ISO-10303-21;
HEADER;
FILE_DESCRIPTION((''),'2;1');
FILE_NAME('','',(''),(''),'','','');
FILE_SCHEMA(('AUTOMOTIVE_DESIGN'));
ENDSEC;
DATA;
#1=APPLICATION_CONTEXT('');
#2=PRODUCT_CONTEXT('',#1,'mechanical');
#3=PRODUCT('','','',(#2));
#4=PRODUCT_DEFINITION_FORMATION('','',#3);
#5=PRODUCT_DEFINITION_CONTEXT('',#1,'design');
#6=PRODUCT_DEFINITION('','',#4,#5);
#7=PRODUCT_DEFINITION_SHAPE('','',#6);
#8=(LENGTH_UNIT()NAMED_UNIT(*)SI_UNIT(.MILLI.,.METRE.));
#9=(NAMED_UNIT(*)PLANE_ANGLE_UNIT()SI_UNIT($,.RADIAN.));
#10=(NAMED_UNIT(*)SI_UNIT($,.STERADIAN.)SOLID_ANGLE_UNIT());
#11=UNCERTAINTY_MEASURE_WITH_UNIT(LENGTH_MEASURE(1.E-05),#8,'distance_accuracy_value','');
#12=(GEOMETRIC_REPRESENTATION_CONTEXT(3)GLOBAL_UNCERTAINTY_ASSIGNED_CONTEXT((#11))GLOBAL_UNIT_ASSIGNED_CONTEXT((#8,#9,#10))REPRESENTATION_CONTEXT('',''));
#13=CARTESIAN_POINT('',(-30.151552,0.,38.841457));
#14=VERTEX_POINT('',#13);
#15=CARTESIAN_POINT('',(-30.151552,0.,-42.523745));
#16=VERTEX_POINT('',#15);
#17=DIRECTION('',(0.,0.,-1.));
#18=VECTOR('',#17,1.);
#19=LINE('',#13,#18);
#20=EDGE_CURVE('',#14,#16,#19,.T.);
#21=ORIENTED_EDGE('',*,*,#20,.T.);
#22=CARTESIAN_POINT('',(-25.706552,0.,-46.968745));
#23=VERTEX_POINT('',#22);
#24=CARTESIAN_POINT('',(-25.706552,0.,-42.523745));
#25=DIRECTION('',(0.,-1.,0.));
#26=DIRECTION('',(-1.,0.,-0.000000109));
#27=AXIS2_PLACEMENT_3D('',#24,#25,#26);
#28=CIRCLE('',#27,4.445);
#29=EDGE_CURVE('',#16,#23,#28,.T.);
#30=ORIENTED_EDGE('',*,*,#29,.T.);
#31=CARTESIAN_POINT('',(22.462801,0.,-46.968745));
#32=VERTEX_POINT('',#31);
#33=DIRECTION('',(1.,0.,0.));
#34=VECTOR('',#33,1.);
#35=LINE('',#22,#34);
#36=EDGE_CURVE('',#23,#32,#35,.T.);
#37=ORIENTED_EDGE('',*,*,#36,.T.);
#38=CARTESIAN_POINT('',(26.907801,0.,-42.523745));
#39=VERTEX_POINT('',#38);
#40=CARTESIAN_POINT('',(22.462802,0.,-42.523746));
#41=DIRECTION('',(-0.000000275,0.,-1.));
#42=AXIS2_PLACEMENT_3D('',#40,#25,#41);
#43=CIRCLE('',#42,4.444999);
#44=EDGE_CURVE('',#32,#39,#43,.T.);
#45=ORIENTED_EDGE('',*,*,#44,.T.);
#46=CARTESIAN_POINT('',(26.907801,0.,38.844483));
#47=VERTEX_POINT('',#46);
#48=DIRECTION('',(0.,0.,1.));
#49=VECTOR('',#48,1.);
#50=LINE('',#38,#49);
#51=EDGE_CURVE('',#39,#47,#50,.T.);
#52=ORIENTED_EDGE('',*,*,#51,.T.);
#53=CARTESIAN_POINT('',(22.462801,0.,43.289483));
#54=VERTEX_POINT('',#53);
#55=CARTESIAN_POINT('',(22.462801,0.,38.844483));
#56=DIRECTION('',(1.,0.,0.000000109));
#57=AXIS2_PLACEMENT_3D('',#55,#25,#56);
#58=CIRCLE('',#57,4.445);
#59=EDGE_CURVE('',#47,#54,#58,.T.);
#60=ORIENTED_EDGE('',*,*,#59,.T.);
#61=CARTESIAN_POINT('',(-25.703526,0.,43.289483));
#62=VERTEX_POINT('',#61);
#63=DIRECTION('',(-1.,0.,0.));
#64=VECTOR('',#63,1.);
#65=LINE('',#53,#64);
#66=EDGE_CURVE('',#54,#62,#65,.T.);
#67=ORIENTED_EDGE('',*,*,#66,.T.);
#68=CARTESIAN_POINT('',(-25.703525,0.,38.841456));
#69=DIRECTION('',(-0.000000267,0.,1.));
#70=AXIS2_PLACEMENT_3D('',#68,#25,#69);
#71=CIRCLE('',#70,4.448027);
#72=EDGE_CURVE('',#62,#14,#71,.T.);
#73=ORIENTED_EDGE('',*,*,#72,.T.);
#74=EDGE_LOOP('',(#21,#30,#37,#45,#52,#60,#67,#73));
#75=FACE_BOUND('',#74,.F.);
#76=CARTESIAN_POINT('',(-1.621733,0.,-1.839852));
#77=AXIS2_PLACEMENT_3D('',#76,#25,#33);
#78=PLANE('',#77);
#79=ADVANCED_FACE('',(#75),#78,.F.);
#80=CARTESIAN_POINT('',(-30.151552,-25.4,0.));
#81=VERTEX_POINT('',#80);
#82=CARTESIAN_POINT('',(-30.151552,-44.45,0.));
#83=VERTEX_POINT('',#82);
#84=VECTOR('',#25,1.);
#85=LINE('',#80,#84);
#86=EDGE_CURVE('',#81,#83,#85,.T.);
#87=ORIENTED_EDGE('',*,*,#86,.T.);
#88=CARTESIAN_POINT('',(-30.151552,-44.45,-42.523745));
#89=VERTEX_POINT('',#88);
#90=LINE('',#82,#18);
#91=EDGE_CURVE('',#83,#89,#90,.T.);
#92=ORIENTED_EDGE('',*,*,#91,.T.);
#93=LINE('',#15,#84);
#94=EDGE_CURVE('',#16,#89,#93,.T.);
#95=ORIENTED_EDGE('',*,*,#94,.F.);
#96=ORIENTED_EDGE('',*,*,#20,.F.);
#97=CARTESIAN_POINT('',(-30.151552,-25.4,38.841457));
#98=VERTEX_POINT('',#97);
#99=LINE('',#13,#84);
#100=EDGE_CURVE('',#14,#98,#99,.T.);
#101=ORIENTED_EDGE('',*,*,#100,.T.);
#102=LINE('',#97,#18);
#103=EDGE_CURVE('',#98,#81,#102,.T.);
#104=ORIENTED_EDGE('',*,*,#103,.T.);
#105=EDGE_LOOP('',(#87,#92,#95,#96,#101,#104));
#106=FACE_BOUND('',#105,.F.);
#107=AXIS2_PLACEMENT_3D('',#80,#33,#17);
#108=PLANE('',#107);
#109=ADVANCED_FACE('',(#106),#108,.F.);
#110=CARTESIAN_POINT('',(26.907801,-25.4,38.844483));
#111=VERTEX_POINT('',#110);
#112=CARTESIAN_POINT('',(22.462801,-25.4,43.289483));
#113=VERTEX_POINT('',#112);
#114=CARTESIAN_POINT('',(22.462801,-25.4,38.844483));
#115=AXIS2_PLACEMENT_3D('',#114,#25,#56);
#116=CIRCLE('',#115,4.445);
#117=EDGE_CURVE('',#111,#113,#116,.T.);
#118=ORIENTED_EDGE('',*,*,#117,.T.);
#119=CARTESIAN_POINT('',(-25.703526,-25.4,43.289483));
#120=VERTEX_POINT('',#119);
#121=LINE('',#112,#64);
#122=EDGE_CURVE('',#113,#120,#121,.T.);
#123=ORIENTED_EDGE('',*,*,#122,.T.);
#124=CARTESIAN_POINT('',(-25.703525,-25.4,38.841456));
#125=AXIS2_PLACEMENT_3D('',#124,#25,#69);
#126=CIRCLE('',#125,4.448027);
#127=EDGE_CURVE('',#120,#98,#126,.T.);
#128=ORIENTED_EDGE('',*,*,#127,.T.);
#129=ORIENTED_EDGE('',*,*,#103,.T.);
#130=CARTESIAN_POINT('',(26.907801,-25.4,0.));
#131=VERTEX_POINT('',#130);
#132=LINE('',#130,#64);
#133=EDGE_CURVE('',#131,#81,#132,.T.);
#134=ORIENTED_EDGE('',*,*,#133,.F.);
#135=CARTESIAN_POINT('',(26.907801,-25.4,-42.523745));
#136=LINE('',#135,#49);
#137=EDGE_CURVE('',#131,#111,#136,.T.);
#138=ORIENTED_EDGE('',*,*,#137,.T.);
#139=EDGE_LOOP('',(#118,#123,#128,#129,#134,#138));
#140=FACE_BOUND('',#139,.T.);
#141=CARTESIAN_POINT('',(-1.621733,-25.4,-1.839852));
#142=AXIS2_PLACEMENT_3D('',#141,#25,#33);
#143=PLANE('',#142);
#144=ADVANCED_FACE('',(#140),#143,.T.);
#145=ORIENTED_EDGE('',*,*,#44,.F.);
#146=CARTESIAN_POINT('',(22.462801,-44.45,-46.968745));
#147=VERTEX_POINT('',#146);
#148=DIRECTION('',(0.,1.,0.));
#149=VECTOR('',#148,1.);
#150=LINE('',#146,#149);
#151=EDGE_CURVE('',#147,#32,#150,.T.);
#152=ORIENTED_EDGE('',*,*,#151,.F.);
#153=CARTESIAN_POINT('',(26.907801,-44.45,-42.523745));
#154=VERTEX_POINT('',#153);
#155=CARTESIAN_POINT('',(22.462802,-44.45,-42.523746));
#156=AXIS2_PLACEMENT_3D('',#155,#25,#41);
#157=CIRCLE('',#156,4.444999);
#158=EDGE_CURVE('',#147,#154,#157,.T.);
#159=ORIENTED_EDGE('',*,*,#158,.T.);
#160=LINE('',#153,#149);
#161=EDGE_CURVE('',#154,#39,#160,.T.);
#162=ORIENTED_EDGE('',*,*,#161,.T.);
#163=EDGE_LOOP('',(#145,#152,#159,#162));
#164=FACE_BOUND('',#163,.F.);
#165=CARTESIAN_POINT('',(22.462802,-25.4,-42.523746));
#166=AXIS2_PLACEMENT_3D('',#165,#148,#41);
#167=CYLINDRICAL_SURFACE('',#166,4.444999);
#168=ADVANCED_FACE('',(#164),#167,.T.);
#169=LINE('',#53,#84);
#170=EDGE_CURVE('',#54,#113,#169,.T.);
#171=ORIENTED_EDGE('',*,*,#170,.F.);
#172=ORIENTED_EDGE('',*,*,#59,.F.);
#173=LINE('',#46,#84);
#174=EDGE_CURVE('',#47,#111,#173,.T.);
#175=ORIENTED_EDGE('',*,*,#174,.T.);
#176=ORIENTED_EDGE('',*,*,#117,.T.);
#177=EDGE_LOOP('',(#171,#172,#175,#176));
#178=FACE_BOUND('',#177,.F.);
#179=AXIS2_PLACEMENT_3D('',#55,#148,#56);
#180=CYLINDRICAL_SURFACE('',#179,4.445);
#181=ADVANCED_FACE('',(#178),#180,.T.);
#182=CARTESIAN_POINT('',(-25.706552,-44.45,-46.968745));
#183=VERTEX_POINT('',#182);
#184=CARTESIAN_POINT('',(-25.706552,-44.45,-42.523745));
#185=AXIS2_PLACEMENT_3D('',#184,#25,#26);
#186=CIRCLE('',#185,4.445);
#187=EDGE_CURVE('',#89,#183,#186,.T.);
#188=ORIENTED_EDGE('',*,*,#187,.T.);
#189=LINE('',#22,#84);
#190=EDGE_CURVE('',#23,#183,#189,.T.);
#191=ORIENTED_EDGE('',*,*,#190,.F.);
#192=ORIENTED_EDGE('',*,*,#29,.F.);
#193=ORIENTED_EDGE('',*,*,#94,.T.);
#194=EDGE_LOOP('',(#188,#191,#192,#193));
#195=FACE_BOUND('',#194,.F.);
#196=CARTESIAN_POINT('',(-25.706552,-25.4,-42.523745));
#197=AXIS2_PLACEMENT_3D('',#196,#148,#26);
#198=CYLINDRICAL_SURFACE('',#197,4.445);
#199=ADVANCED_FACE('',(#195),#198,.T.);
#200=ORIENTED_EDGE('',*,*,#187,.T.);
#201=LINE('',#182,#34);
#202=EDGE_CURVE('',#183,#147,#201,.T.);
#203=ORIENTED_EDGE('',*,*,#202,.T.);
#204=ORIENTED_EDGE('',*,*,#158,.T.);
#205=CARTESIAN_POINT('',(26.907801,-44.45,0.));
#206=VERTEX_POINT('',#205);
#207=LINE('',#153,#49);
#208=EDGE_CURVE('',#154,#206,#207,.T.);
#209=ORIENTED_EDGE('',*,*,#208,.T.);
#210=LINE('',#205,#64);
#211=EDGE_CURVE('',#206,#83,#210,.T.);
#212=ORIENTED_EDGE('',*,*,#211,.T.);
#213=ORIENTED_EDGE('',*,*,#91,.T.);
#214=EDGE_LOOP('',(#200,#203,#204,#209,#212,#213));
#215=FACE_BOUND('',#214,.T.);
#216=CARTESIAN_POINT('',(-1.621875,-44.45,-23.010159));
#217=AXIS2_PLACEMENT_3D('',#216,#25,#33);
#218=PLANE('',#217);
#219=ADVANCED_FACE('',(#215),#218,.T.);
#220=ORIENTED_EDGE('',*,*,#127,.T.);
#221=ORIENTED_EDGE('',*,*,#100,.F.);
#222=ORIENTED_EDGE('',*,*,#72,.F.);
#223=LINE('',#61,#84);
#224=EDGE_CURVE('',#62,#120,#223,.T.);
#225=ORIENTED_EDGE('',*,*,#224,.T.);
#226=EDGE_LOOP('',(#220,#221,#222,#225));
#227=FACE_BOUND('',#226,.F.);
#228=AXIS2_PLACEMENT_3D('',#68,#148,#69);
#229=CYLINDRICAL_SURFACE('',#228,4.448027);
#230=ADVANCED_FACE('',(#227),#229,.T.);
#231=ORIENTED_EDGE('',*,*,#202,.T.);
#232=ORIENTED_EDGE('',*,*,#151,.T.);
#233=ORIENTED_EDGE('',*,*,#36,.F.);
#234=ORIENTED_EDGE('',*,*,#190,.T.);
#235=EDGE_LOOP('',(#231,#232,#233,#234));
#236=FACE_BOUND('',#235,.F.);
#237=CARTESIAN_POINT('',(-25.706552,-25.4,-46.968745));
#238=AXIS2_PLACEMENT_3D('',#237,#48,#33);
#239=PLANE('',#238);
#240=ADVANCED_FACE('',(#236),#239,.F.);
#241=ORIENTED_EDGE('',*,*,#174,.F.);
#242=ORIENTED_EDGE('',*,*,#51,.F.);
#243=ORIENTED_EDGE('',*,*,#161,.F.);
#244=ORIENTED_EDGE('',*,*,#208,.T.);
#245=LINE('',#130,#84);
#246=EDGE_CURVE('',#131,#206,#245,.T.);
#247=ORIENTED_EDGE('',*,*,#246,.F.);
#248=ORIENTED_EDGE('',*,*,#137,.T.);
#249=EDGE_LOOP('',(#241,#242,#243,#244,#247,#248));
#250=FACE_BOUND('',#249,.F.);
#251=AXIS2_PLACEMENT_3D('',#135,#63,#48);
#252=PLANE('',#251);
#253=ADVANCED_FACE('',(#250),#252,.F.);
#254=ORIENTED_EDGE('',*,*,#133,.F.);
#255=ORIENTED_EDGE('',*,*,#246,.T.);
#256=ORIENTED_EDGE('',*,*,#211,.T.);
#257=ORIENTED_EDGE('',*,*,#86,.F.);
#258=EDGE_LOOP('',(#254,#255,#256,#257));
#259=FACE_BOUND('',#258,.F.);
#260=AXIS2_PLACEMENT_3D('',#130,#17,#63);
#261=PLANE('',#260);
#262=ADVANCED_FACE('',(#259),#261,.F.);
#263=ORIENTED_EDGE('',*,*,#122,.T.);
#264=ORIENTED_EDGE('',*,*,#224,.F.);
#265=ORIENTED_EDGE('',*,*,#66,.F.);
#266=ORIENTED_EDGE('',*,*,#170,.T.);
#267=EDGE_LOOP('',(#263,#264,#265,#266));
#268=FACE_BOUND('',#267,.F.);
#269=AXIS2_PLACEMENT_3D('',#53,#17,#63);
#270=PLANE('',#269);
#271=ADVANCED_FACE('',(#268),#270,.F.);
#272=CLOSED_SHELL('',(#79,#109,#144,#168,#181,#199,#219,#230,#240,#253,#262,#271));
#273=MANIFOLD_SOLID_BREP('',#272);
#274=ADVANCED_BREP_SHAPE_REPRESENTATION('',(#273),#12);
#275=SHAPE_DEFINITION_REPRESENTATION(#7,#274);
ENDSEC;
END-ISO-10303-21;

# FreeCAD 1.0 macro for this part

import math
import FreeCAD as App
import Part
import Sketcher

V = App.Vector
Q = App.Units.Quantity

doc = App.newDocument("Part")
body = doc.addObject("PartDesign::Body", "Body")

sketch1 = body.newObject("Sketcher::SketchObject", "Sketch")
sketch1.AttachmentSupport = (doc.getObject("XZ_Plane"), [""])
sketch1.MapMode = "FlatFace"
sketch1.addGeometry([
    Part.LineSegment(V(22.5, 43.3, 0), V(-25.7, 43.3, 0)),
    Part.ArcOfCircle(Part.Circle(V(-25.7, 38.8, 0), V(0, 0, 1), 4.4), math.radians(90), math.radians(180)),
    Part.LineSegment(V(-30.2, 38.8, 0), V(-30.2, -42.5, 0)),
    Part.ArcOfCircle(Part.Circle(V(-25.7, -42.5, 0), V(0, 0, 1), 4.4), math.radians(-180), math.radians(-90)),
    Part.LineSegment(V(-25.7, -47, 0), V(22.5, -47, 0)),
    Part.ArcOfCircle(Part.Circle(V(22.5, -42.5, 0), V(0, 0, 1), 4.4), math.radians(-90), math.radians(0)),
    Part.LineSegment(V(26.9, -42.5, 0), V(26.9, 38.8, 0)),
    Part.ArcOfCircle(Part.Circle(V(22.5, 38.8, 0), V(0, 0, 1), 4.4), math.radians(0), math.radians(90)),
], False)
sketch1.addConstraint([
    Sketcher.Constraint("Tangent", 0, 2, 1, 1),
    Sketcher.Constraint("Tangent", 1, 2, 2, 1),
    Sketcher.Constraint("Tangent", 2, 2, 3, 1),
    Sketcher.Constraint("Tangent", 3, 2, 4, 1),
    Sketcher.Constraint("Tangent", 4, 2, 5, 1),
    Sketcher.Constraint("Tangent", 5, 2, 6, 1),
    Sketcher.Constraint("Tangent", 6, 2, 7, 1),
    Sketcher.Constraint("Tangent", 7, 2, 0, 1),
    Sketcher.Constraint("Horizontal", 0),
    Sketcher.Constraint("Vertical", 2),
    Sketcher.Constraint("Horizontal", 4),
    Sketcher.Constraint("Vertical", 6),
    Sketcher.Constraint("Equal", 3, 5),
    Sketcher.Constraint("Equal", 5, 7),
    Sketcher.Constraint("Radius", 3, Q("0.175 in")),
    Sketcher.Constraint("DistanceY", 2, 2, 2, 1, Q("81.365202 mm")),
    Sketcher.Constraint("Radius", 1, Q("4.448027 mm")),
    Sketcher.Constraint("DistanceX", -1, 1, 7, 3, Q("22.462801 mm")),
    Sketcher.Constraint("DistanceX", 0, 2, 0, 1, Q("48.166327 mm")),
    Sketcher.Constraint("DistanceY", -1, 1, 1, 3, Q("38.841456 mm")),
])
pad1 = body.newObject("PartDesign::Pad", "Pad")
pad1.Profile = sketch1
pad1.Length = Q("1 in")

sketch2 = body.newObject("Sketcher::SketchObject", "Sketch001")
sketch2.AttachmentSupport = (doc.getObject("XZ_Plane"), [""])
sketch2.MapMode = "FlatFace"
sketch2.AttachmentOffset = App.Placement(V(0, 0, 1 * 25.4), App.Rotation())
sketch2.addGeometry([
    Part.LineSegment(V(26.9, 0, 0), V(-30.2, 0, 0)),
    Part.LineSegment(V(-30.2, 0, 0), V(-30.2, -42.5, 0)),
    Part.ArcOfCircle(Part.Circle(V(-25.7, -42.5, 0), V(0, 0, 1), 4.4), math.radians(-180), math.radians(-90)),
    Part.LineSegment(V(-25.7, -47, 0), V(22.5, -47, 0)),
    Part.ArcOfCircle(Part.Circle(V(22.5, -42.5, 0), V(0, 0, 1), 4.4), math.radians(-90), math.radians(0)),
    Part.LineSegment(V(26.9, -42.5, 0), V(26.9, 0, 0)),
], False)
sketch2.addConstraint([
    Sketcher.Constraint("Coincident", 0, 2, 1, 1),
    Sketcher.Constraint("Tangent", 1, 2, 2, 1),
    Sketcher.Constraint("Tangent", 2, 2, 3, 1),
    Sketcher.Constraint("Tangent", 3, 2, 4, 1),
    Sketcher.Constraint("Tangent", 4, 2, 5, 1),
    Sketcher.Constraint("Coincident", 5, 2, 0, 1),
    Sketcher.Constraint("Horizontal", 0),
    Sketcher.Constraint("Vertical", 1),
    Sketcher.Constraint("Horizontal", 3),
    Sketcher.Constraint("Vertical", 5),
    Sketcher.Constraint("Equal", 2, 4),
    Sketcher.Constraint("PointOnObject", 0, 2, -1),
    Sketcher.Constraint("Radius", 2, Q("0.175 in")),
    Sketcher.Constraint("DistanceX", -1, 1, 3, 2, Q("22.462801 mm")),
    Sketcher.Constraint("DistanceX", 0, 2, 0, 1, Q("57.059353 mm")),
    Sketcher.Constraint("DistanceY", 1, 2, 1, 1, Q("42.523745 mm")),
])
pad2 = body.newObject("PartDesign::Pad", "Pad001")
pad2.Profile = sketch2
pad2.Length = Q("0.75 in")

doc.recompute()
